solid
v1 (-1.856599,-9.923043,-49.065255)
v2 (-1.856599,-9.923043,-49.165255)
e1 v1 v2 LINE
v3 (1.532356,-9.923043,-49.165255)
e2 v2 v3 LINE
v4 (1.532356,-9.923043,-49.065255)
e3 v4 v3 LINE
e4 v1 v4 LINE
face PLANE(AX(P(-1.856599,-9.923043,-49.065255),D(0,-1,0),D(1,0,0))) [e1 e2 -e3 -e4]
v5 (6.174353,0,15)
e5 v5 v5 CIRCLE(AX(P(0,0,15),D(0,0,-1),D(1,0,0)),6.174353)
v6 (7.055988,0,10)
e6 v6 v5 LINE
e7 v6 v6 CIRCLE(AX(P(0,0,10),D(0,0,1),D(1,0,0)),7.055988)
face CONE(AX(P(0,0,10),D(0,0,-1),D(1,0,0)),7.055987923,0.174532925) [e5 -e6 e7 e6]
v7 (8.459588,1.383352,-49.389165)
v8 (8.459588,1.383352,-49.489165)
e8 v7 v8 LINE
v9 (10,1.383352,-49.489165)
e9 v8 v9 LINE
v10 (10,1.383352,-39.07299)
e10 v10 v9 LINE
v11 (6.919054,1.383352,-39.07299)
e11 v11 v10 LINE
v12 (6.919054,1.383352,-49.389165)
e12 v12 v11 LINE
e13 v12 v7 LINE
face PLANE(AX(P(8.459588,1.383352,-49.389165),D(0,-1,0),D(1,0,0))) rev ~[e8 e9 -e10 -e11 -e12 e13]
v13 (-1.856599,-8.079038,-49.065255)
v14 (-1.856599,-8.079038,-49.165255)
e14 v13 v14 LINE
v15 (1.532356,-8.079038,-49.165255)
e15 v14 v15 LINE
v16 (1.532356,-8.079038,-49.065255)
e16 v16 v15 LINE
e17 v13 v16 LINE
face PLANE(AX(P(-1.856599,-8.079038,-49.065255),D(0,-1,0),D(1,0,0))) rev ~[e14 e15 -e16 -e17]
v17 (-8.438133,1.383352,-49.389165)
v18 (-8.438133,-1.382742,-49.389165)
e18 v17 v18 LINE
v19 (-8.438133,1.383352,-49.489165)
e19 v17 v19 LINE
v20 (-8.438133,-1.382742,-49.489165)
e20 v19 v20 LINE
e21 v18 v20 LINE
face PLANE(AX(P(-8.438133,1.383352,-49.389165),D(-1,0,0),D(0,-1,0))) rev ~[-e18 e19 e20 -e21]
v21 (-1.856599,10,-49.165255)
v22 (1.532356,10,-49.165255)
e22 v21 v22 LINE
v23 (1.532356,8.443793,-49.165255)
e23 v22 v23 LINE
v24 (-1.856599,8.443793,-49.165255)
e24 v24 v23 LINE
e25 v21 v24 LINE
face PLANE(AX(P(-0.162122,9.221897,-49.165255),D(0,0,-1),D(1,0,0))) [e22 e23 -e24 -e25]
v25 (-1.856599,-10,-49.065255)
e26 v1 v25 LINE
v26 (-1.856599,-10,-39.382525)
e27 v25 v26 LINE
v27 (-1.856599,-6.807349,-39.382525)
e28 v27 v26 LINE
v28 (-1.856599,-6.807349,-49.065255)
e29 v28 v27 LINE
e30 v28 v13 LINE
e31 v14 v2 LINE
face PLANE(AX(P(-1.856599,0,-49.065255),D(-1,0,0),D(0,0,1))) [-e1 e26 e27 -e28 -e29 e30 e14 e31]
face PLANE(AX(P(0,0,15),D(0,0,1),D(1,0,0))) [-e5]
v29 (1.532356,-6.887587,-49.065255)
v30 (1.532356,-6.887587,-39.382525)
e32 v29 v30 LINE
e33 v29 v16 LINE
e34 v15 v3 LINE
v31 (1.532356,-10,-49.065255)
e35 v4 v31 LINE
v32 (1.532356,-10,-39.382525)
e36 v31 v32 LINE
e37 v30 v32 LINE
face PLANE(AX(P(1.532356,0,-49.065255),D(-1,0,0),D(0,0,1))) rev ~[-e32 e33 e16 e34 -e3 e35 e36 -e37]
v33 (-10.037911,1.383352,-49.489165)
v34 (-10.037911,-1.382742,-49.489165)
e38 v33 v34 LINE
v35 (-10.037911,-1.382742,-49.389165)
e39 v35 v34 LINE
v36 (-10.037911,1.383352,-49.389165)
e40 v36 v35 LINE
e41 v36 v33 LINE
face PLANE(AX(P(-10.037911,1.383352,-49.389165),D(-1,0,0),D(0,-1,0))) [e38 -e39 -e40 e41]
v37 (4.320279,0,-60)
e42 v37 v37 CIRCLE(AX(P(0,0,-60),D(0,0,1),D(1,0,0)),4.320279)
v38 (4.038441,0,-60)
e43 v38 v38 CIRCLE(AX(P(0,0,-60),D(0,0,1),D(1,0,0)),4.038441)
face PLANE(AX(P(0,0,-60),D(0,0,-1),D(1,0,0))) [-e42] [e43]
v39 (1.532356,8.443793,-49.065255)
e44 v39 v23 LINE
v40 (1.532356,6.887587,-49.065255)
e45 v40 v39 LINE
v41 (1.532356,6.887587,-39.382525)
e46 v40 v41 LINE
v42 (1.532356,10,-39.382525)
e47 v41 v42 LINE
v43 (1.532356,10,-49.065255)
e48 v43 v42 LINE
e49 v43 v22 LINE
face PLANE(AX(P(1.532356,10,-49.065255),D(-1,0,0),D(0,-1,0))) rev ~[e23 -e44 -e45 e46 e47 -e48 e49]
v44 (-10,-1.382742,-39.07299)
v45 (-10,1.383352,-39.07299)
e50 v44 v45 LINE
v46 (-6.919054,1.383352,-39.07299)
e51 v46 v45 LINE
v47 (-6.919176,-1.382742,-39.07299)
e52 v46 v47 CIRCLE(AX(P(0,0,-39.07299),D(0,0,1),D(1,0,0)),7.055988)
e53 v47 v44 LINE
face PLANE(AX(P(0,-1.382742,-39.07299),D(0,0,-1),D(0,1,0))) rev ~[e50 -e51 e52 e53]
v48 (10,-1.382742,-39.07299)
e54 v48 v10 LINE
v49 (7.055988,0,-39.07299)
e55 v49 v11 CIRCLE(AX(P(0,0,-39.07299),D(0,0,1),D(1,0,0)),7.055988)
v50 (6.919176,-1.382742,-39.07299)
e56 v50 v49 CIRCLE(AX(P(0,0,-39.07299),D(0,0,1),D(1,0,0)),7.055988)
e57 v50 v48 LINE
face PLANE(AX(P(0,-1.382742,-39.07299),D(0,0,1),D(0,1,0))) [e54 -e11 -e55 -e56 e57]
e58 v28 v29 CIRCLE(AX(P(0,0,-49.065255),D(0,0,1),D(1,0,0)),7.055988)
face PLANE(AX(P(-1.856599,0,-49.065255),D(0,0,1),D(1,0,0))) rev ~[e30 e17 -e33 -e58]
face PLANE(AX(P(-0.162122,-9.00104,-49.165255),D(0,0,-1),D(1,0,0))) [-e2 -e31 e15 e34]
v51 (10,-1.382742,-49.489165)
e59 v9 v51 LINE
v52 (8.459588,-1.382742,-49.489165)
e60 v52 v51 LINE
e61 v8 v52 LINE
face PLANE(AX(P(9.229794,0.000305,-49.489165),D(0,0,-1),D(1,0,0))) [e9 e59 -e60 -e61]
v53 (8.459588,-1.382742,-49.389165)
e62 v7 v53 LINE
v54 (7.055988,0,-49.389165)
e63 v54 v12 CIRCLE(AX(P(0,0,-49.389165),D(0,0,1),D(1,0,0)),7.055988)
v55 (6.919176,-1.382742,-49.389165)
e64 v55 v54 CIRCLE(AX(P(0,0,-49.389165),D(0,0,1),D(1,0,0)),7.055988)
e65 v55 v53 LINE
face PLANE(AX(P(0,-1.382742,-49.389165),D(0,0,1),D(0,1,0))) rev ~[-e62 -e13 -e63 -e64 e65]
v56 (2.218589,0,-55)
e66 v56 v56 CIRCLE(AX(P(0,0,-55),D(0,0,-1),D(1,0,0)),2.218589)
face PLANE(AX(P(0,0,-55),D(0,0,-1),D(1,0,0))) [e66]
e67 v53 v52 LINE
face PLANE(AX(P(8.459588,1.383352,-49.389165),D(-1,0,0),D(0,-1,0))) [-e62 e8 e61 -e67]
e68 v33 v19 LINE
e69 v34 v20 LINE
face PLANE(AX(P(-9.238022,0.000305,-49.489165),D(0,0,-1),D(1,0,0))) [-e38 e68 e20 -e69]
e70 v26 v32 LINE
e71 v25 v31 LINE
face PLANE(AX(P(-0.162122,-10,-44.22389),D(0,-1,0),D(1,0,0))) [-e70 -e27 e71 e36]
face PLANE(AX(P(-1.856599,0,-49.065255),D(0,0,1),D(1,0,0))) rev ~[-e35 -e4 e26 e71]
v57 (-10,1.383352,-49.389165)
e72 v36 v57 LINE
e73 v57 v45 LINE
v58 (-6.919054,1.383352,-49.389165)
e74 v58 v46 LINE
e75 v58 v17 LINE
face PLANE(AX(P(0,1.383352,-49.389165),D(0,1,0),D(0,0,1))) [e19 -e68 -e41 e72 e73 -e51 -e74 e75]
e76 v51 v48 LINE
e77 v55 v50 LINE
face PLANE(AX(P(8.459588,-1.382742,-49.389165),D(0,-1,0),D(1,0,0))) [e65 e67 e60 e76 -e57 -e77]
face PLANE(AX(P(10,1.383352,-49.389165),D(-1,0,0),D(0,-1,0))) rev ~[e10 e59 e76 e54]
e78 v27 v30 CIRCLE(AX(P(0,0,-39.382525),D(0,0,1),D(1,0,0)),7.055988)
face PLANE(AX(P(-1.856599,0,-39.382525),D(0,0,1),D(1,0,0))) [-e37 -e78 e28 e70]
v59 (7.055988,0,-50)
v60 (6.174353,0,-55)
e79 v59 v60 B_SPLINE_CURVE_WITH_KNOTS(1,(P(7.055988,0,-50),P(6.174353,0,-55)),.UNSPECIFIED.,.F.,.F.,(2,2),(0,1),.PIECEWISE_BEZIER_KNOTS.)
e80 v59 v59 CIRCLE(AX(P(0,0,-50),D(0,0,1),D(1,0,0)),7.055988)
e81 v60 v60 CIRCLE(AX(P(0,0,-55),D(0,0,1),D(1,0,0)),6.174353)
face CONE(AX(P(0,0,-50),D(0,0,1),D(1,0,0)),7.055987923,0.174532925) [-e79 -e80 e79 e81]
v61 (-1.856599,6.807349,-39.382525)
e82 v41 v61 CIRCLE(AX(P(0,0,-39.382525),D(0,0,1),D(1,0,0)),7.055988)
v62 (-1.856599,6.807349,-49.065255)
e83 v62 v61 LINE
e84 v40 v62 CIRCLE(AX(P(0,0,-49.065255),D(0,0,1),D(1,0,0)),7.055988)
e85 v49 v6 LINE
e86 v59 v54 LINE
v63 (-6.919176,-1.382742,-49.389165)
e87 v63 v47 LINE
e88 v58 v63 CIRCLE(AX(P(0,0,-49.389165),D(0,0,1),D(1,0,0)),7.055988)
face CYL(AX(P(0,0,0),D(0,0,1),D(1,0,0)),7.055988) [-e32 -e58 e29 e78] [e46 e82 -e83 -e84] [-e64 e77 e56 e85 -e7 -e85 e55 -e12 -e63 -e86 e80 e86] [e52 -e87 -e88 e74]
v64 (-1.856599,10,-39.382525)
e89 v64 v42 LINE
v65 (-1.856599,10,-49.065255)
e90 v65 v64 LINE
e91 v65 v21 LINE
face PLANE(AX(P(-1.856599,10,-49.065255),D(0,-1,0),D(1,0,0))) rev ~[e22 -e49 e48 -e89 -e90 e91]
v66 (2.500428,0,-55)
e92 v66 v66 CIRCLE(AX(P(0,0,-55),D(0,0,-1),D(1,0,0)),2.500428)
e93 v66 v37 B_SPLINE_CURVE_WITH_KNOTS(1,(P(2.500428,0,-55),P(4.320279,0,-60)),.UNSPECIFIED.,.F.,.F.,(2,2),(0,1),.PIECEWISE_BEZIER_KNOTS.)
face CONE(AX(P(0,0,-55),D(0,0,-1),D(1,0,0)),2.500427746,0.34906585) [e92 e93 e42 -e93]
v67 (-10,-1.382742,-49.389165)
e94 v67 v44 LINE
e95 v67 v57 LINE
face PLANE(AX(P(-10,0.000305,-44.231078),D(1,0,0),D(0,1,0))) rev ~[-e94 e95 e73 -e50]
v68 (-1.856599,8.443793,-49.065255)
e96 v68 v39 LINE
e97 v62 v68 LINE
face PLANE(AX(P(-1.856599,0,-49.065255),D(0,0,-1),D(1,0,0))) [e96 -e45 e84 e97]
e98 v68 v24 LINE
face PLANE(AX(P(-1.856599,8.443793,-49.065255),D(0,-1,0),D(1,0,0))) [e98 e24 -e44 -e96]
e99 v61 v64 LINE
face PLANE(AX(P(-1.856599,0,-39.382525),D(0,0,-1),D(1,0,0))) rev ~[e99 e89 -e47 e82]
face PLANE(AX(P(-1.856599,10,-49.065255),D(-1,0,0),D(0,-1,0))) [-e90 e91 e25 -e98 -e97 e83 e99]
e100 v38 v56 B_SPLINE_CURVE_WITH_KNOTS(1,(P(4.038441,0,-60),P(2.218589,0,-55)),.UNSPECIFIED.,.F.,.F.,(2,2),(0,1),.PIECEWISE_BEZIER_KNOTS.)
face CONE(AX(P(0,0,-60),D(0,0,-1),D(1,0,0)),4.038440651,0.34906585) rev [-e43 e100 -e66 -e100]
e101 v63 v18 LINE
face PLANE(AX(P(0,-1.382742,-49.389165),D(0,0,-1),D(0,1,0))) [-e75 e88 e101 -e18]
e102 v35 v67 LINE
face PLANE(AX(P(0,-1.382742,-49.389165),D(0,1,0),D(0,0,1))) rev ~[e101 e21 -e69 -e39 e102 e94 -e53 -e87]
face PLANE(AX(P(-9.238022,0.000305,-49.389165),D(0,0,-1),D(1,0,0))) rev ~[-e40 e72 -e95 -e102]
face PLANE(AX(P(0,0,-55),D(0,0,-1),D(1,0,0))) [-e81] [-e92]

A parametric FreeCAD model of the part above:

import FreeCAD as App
import Part
import Sketcher
from FreeCAD import Vector
Q = App.Units.Quantity

doc = App.newDocument("Part")
body = doc.addObject("PartDesign::Body", "Body")

sketch1 = body.newObject("Sketcher::SketchObject", "Sketch")
sketch1.AttachmentSupport = (doc.getObject("XY_Plane"), [""])
sketch1.MapMode = "FlatFace"
sketch1.addGeometry(Part.Circle(Vector(0, 0, 0), Vector(0, 0, 1), 7), False)
sketch1.addConstraint([
    Sketcher.Constraint("Coincident", 0, 3, -1, 1),
    Sketcher.Constraint("Diameter", 0, Q("14.111976 mm")),
])
pad1 = body.newObject("PartDesign::Pad", "Pad")
pad1.Profile = sketch1
pad1.Type = "TwoLengths"
pad1.Length = 10
pad1.Length2 = 50

sketch2 = body.newObject("Sketcher::SketchObject", "Sketch001")
sketch2.AttachmentSupport = (doc.getObject("XY_Plane"), [""])
sketch2.MapMode = "FlatFace"
sketch2.AttachmentOffset = App.Placement(Vector(0, 0, 10), App.Rotation())
sketch2.addGeometry(Part.Circle(Vector(0, 0, 0), Vector(0, 0, 1), 7), False)
sketch2.addConstraint([
    Sketcher.Constraint("Coincident", 0, 3, -1, 1),
    Sketcher.Constraint("Diameter", 0, Q("14.111976 mm")),
])
pad2 = body.newObject("PartDesign::Pad", "Pad001")
pad2.Profile = sketch2
pad2.Length = 5
pad2.TaperAngle = -10

sketch3 = body.newObject("Sketcher::SketchObject", "Sketch002")
sketch3.AttachmentSupport = (doc.getObject("XY_Plane"), [""])
sketch3.MapMode = "FlatFace"
sketch3.AttachmentOffset = App.Placement(Vector(0, 0, -50), App.Rotation())
sketch3.addGeometry(Part.Circle(Vector(0, 0, 0), Vector(0, 0, 1), 7), False)
sketch3.addConstraint([
    Sketcher.Constraint("Coincident", 0, 3, -1, 1),
    Sketcher.Constraint("Diameter", 0, Q("14.111976 mm")),
])
pad3 = body.newObject("PartDesign::Pad", "Pad002")
pad3.Profile = sketch3
pad3.Length = 5
pad3.Reversed = True
pad3.TaperAngle = -10

sketch4 = body.newObject("Sketcher::SketchObject", "Sketch003")
sketch4.AttachmentSupport = (doc.getObject("XY_Plane"), [""])
sketch4.MapMode = "FlatFace"
sketch4.AttachmentOffset = App.Placement(Vector(0, 0, -55), App.Rotation())
sketch4.addGeometry(Part.Circle(Vector(0, 0, 0), Vector(0, 0, 1), 2.5), False)
sketch4.addConstraint([
    Sketcher.Constraint("Coincident", 0, 3, -1, 1),
    Sketcher.Constraint("Diameter", 0, Q("5.000855 mm")),
])
pad4 = body.newObject("PartDesign::Pad", "Pad003")
pad4.Profile = sketch4
pad4.Length = 5
pad4.Reversed = True
pad4.TaperAngle = 20

sketch5 = body.newObject("Sketcher::SketchObject", "Sketch004")
sketch5.AttachmentSupport = (doc.getObject("XY_Plane"), [""])
sketch5.MapMode = "FlatFace"
sketch5.AttachmentOffset = App.Placement(Vector(0, 0, -60), App.Rotation())
sketch5.addGeometry(Part.Circle(Vector(0, 0, 0), Vector(0, 0, 1), 4), False)
sketch5.addConstraint([
    Sketcher.Constraint("Coincident", 0, 3, -1, 1),
    Sketcher.Constraint("Diameter", 0, Q("8.076881 mm")),
])
pocket1 = body.newObject("PartDesign::Pocket", "Pocket")
pocket1.Profile = sketch5
pocket1.Length = 5
pocket1.Reversed = True
pocket1.TaperAngle = -20

sketch6 = body.newObject("Sketcher::SketchObject", "Sketch005")
sketch6.AttachmentSupport = (doc.getObject("YZ_Plane"), [""])
sketch6.MapMode = "FlatFace"
sketch6.addGeometry([
    Part.LineSegment(Vector(-1.4, -39.1, 0), Vector(-1.4, -49.4, 0)),
    Part.LineSegment(Vector(-1.4, -49.4, 0), Vector(1.4, -49.4, 0)),
    Part.LineSegment(Vector(1.4, -49.4, 0), Vector(1.4, -39.1, 0)),
    Part.LineSegment(Vector(1.4, -39.1, 0), Vector(-1.4, -39.1, 0)),
], False)
sketch6.addConstraint([
    Sketcher.Constraint("Coincident", 0, 2, 1, 1),
    Sketcher.Constraint("Coincident", 1, 2, 2, 1),
    Sketcher.Constraint("Coincident", 2, 2, 3, 1),
    Sketcher.Constraint("Coincident", 3, 2, 0, 1),
    Sketcher.Constraint("Vertical", 0),
    Sketcher.Constraint("Horizontal", 1),
    Sketcher.Constraint("Vertical", 2),
    Sketcher.Constraint("Horizontal", 3),
    Sketcher.Constraint("DistanceX", 1, 1, 1, 2, Q("2.766094 mm")),
    Sketcher.Constraint("DistanceY", 0, 2, 0, 1, Q("10.316174 mm")),
    Sketcher.Constraint("DistanceY", 2, 2, -1, 1, Q("39.07299 mm")),
    Sketcher.Constraint("DistanceX", 0, 2, -1, 1, Q("1.382742 mm")),
])
pad5 = body.newObject("PartDesign::Pad", "Pad004")
pad5.Profile = sketch6
pad5.Type = "TwoLengths"
pad5.Length = 10
pad5.Length2 = 10

sketch7 = body.newObject("Sketcher::SketchObject", "Sketch006")
sketch7.AttachmentSupport = (doc.getObject("XY_Plane"), [""])
sketch7.MapMode = "FlatFace"
sketch7.AttachmentOffset = App.Placement(Vector(0, 0, -49.389165), App.Rotation())
sketch7.addGeometry([
    Part.LineSegment(Vector(8.5, -1.4, 0), Vector(8.5, 1.4, 0)),
    Part.LineSegment(Vector(8.5, 1.4, 0), Vector(10, 1.4, 0)),
    Part.LineSegment(Vector(10, 1.4, 0), Vector(10, -1.4, 0)),
    Part.LineSegment(Vector(10, -1.4, 0), Vector(8.5, -1.4, 0)),
    Part.LineSegment(Vector(-10, -1.4, 0), Vector(-10, 1.4, 0)),
    Part.LineSegment(Vector(-10, 1.4, 0), Vector(-8.4, 1.4, 0)),
    Part.LineSegment(Vector(-8.4, 1.4, 0), Vector(-8.4, -1.4, 0)),
    Part.LineSegment(Vector(-8.4, -1.4, 0), Vector(-10, -1.4, 0)),
], False)
sketch7.addConstraint([
    Sketcher.Constraint("Coincident", 0, 2, 1, 1),
    Sketcher.Constraint("Coincident", 1, 2, 2, 1),
    Sketcher.Constraint("Coincident", 2, 2, 3, 1),
    Sketcher.Constraint("Coincident", 3, 2, 0, 1),
    Sketcher.Constraint("Coincident", 4, 2, 5, 1),
    Sketcher.Constraint("Coincident", 5, 2, 6, 1),
    Sketcher.Constraint("Coincident", 6, 2, 7, 1),
    Sketcher.Constraint("Coincident", 7, 2, 4, 1),
    Sketcher.Constraint("Vertical", 0),
    Sketcher.Constraint("Horizontal", 1),
    Sketcher.Constraint("Vertical", 2),
    Sketcher.Constraint("Horizontal", 3),
    Sketcher.Constraint("Vertical", 4),
    Sketcher.Constraint("Horizontal", 5),
    Sketcher.Constraint("Vertical", 6),
    Sketcher.Constraint("Horizontal", 7),
    Sketcher.Constraint("Horizontal", 1, 2, 4, 2),
    Sketcher.Constraint("Horizontal", 3, 2, 6, 2),
    Sketcher.Constraint("DistanceX", -1, 1, 1, 2, Q("10 mm")),
    Sketcher.Constraint("DistanceX", 5, 1, 5, 2, Q("1.599778 mm")),
    Sketcher.Constraint("DistanceX", 4, 2, 0, 2, Q("18.497499 mm")),
    Sketcher.Constraint("DistanceX", 1, 1, 1, 2, Q("1.540412 mm")),
    Sketcher.Constraint("DistanceY", 0, 1, 0, 2, Q("2.766094 mm")),
    Sketcher.Constraint("DistanceY", -1, 1, 0, 2, Q("1.383352 mm")),
])
pad6 = body.newObject("PartDesign::Pad", "Pad005")
pad6.Profile = sketch7
pad6.Length = 0.1
pad6.Reversed = True

sketch8 = body.newObject("Sketcher::SketchObject", "Sketch007")
sketch8.AttachmentSupport = (doc.getObject("XZ_Plane"), [""])
sketch8.MapMode = "FlatFace"
sketch8.addGeometry([
    Part.LineSegment(Vector(-1.9, -39.4, 0), Vector(-1.9, -49.1, 0)),
    Part.LineSegment(Vector(-1.9, -49.1, 0), Vector(1.5, -49.1, 0)),
    Part.LineSegment(Vector(1.5, -49.1, 0), Vector(1.5, -39.4, 0)),
    Part.LineSegment(Vector(1.5, -39.4, 0), Vector(-1.9, -39.4, 0)),
], False)
sketch8.addConstraint([
    Sketcher.Constraint("Coincident", 0, 2, 1, 1),
    Sketcher.Constraint("Coincident", 1, 2, 2, 1),
    Sketcher.Constraint("Coincident", 2, 2, 3, 1),
    Sketcher.Constraint("Coincident", 3, 2, 0, 1),
    Sketcher.Constraint("Vertical", 0),
    Sketcher.Constraint("Horizontal", 1),
    Sketcher.Constraint("Vertical", 2),
    Sketcher.Constraint("Horizontal", 3),
    Sketcher.Constraint("DistanceY", 0, 2, 0, 1, Q("9.68273 mm")),
    Sketcher.Constraint("DistanceX", 0, 2, -1, 1, Q("1.856599 mm")),
    Sketcher.Constraint("DistanceX", 1, 1, 1, 2, Q("3.388955 mm")),
    Sketcher.Constraint("DistanceY", 0, 2, -1, 1, Q("49.065255 mm")),
])
pad7 = body.newObject("PartDesign::Pad", "Pad006")
pad7.Profile = sketch8
pad7.Type = "TwoLengths"
pad7.Length = 10
pad7.Length2 = 10

sketch9 = body.newObject("Sketcher::SketchObject", "Sketch008")
sketch9.AttachmentSupport = (doc.getObject("XY_Plane"), [""])
sketch9.MapMode = "FlatFace"
sketch9.AttachmentOffset = App.Placement(Vector(0, 0, -49.065255), App.Rotation())
sketch9.addGeometry([
    Part.LineSegment(Vector(-1.9, 8.4, 0), Vector(-1.9, 10, 0)),
    Part.LineSegment(Vector(-1.9, 10, 0), Vector(1.5, 10, 0)),
    Part.LineSegment(Vector(1.5, 10, 0), Vector(1.5, 8.4, 0)),
    Part.LineSegment(Vector(1.5, 8.4, 0), Vector(-1.9, 8.4, 0)),
    Part.LineSegment(Vector(-1.9, -9.9, 0), Vector(-1.9, -8.1, 0)),
    Part.LineSegment(Vector(-1.9, -8.1, 0), Vector(1.5, -8.1, 0)),
    Part.LineSegment(Vector(1.5, -8.1, 0), Vector(1.5, -9.9, 0)),
    Part.LineSegment(Vector(1.5, -9.9, 0), Vector(-1.9, -9.9, 0)),
], False)
sketch9.addConstraint([
    Sketcher.Constraint("Coincident", 0, 2, 1, 1),
    Sketcher.Constraint("Coincident", 1, 2, 2, 1),
    Sketcher.Constraint("Coincident", 2, 2, 3, 1),
    Sketcher.Constraint("Coincident", 3, 2, 0, 1),
    Sketcher.Constraint("Coincident", 4, 2, 5, 1),
    Sketcher.Constraint("Coincident", 5, 2, 6, 1),
    Sketcher.Constraint("Coincident", 6, 2, 7, 1),
    Sketcher.Constraint("Coincident", 7, 2, 4, 1),
    Sketcher.Constraint("Vertical", 0),
    Sketcher.Constraint("Horizontal", 1),
    Sketcher.Constraint("Vertical", 2),
    Sketcher.Constraint("Horizontal", 3),
    Sketcher.Constraint("Vertical", 4),
    Sketcher.Constraint("Horizontal", 5),
    Sketcher.Constraint("Vertical", 6),
    Sketcher.Constraint("Horizontal", 7),
    Sketcher.Constraint("Vertical", 3, 2, 4, 2),
    Sketcher.Constraint("Vertical", 2, 2, 5, 2),
    Sketcher.Constraint("DistanceY", -1, 1, 0, 2, Q("10 mm")),
    Sketcher.Constraint("DistanceX", 0, 2, -1, 1, Q("1.856599 mm")),
    Sketcher.Constraint("DistanceX", 1, 1, 1, 2, Q("3.388955 mm")),
    Sketcher.Constraint("DistanceY", 0, 1, 0, 2, Q("1.556207 mm")),
    Sketcher.Constraint("DistanceY", 4, 1, 4, 2, Q("1.844005 mm")),
    Sketcher.Constraint("DistanceY", 4, 2, -1, 1, Q("8.079038 mm")),
])
pad8 = body.newObject("PartDesign::Pad", "Pad007")
pad8.Profile = sketch9
pad8.Length = 0.1
pad8.Reversed = True

doc.recompute()
